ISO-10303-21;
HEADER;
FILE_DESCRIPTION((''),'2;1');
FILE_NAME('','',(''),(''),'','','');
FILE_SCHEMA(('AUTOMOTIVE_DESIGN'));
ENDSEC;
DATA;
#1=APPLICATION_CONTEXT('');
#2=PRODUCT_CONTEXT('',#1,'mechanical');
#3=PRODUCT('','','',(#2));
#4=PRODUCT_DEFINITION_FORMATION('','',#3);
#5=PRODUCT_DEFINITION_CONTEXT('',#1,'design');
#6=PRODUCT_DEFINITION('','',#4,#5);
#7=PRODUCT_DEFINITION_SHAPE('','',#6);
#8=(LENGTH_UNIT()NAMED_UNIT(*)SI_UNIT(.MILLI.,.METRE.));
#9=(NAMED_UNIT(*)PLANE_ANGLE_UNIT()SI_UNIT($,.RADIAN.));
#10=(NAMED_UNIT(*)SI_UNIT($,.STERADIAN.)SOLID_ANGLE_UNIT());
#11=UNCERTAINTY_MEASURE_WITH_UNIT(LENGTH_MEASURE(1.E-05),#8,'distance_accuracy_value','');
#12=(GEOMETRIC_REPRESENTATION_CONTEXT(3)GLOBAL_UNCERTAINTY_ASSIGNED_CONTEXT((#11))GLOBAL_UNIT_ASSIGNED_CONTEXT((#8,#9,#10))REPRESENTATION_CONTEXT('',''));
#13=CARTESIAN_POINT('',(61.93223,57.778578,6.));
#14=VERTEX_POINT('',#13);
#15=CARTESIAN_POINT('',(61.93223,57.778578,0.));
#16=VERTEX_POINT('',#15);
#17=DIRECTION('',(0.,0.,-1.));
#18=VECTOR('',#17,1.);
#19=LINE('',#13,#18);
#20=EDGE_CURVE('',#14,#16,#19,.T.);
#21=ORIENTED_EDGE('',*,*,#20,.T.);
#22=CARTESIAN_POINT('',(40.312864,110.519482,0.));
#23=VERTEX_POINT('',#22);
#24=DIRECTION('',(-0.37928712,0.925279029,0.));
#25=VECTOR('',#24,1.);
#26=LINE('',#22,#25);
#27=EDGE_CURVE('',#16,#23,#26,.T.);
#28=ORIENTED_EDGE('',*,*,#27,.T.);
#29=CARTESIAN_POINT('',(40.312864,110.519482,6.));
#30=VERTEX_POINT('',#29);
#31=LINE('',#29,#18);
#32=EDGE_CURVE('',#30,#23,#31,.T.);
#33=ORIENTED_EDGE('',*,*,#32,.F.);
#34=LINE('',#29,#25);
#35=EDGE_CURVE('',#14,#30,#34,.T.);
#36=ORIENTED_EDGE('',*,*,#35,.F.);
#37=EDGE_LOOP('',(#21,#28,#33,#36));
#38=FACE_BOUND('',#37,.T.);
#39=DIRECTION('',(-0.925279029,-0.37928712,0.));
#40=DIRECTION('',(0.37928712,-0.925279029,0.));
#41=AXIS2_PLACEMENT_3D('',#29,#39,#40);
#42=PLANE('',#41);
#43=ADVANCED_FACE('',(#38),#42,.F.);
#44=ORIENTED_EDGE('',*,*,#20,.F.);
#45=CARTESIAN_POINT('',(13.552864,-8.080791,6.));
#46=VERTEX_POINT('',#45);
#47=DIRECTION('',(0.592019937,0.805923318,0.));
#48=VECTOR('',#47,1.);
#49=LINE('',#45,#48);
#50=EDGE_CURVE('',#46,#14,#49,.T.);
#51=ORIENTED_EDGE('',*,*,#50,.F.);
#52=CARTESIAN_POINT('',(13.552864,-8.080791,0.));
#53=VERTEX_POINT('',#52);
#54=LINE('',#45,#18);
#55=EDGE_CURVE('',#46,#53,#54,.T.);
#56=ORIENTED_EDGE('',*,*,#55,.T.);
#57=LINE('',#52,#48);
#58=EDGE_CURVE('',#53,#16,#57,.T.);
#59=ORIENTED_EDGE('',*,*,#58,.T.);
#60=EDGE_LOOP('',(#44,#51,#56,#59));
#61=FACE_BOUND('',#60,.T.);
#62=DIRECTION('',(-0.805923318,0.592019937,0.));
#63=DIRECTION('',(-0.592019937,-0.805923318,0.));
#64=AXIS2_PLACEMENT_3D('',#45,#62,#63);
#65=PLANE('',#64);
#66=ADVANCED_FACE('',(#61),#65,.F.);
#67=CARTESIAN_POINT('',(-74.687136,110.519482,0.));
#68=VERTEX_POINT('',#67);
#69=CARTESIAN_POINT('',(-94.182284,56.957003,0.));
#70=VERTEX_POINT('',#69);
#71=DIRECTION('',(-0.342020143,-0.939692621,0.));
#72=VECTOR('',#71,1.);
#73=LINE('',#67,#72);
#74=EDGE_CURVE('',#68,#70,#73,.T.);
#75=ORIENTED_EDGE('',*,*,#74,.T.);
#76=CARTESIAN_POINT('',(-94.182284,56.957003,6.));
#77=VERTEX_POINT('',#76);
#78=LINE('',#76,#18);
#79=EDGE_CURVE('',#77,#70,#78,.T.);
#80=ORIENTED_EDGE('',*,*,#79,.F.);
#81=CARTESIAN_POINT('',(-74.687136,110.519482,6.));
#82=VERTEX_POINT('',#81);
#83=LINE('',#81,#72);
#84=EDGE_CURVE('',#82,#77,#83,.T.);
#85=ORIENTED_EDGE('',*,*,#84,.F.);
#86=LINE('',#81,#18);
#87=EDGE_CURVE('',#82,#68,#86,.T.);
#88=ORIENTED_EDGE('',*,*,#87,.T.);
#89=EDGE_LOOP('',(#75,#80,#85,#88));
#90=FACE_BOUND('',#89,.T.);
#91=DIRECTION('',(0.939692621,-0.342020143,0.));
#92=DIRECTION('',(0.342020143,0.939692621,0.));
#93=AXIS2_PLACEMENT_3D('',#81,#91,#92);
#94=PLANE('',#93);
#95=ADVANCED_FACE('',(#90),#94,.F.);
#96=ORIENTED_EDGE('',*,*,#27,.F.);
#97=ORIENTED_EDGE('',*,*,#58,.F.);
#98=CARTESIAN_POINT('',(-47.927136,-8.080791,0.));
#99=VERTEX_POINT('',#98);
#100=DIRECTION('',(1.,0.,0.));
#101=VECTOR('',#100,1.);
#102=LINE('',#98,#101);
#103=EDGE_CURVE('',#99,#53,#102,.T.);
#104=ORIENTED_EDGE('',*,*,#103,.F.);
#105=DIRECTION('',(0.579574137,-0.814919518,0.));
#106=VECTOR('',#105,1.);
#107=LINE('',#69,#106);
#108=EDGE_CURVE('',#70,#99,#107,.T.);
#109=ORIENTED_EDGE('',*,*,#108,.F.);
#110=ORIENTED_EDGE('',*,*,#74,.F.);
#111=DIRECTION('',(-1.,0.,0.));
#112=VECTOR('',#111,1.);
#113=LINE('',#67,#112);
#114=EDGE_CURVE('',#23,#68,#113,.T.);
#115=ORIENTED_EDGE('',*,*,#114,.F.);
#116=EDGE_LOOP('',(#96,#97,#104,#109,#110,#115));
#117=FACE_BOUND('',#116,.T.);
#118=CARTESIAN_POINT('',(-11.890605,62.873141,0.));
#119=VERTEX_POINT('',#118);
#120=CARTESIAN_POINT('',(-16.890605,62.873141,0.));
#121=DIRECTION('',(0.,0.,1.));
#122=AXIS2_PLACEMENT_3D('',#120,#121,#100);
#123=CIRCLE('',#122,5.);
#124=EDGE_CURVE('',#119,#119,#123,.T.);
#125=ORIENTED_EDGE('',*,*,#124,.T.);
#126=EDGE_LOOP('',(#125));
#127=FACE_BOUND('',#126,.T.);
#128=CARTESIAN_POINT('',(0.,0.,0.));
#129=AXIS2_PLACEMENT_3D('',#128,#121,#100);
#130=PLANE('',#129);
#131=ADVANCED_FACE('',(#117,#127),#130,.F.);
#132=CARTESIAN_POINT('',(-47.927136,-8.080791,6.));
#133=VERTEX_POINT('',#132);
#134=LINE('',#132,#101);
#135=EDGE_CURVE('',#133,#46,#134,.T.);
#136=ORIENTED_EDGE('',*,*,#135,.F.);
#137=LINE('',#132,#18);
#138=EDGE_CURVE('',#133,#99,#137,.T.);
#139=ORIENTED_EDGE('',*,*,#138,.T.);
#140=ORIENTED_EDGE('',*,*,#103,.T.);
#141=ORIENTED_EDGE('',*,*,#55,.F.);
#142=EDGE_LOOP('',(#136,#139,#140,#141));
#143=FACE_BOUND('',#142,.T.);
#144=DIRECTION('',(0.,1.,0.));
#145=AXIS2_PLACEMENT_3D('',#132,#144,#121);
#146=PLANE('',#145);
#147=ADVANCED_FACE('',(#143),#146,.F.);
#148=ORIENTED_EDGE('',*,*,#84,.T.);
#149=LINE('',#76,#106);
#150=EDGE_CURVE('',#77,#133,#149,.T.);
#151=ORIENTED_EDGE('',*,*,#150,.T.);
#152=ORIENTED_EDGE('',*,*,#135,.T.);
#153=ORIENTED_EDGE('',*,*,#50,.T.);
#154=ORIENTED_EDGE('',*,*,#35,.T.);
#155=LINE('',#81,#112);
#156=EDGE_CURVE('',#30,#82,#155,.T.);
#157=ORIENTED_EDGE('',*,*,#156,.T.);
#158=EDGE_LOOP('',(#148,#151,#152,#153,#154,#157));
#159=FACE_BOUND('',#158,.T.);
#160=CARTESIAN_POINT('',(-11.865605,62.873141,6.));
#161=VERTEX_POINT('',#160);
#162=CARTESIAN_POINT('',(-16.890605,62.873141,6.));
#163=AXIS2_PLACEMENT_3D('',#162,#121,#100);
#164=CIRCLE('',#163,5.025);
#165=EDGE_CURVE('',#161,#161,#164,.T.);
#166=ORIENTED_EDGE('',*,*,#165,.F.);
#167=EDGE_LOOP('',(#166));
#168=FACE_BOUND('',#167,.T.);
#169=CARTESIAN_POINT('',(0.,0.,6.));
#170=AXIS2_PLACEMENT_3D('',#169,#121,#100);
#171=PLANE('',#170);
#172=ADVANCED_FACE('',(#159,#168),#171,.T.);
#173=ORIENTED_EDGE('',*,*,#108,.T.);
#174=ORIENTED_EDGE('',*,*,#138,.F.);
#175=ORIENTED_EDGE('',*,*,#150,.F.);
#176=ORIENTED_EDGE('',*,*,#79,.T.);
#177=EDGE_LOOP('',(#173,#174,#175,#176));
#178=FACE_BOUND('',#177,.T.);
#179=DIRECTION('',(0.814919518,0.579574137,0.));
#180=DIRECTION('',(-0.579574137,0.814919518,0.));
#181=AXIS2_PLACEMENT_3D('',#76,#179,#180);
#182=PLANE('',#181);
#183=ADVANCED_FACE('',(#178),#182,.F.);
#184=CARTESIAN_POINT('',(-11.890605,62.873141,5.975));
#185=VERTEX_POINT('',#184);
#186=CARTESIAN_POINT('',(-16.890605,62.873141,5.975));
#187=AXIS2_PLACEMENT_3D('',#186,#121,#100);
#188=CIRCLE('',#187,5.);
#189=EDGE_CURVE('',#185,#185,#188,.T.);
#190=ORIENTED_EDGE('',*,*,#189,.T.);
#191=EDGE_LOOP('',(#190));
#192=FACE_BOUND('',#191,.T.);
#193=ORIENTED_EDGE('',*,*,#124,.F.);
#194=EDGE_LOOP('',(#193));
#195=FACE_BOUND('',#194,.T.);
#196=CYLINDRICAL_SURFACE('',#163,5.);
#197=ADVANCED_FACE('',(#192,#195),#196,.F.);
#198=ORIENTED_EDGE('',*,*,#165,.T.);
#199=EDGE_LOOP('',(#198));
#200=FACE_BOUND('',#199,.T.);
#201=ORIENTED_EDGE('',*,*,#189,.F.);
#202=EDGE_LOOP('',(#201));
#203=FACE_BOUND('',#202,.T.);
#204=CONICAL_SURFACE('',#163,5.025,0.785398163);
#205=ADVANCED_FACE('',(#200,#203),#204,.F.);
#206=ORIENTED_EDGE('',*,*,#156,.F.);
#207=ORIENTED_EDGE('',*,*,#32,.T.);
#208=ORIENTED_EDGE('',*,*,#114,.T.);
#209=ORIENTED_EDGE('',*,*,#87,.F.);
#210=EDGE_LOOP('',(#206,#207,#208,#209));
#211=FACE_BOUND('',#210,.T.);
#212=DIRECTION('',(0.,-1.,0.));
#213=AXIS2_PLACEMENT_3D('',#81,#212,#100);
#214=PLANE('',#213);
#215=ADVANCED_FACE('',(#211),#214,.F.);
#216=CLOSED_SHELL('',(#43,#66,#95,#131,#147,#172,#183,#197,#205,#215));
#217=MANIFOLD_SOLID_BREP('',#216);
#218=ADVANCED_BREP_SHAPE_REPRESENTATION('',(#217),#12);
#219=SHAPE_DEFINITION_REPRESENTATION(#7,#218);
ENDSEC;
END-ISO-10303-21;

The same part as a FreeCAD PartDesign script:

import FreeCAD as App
import Part
import Sketcher
from FreeCAD import Vector
Q = App.Units.Quantity

doc = App.newDocument("Part")
body = doc.addObject("PartDesign::Body", "Body")

sketch1 = doc.addObject("Sketcher::SketchObject", "Sketch")
body.addObject(sketch1)
sketch1.AttachmentSupport = (doc.XY_Plane, [""])
sketch1.MapMode = "FlatFace"
sketch1.addGeometry([
    Part.LineSegment(Vector(-48, -8, 0), Vector(14, -8, 0)),
    Part.LineSegment(Vector(14, -8, 0), Vector(62, 58, 0)),
    Part.LineSegment(Vector(62, 58, 0), Vector(40, 111, 0)),
    Part.LineSegment(Vector(40, 111, 0), Vector(-75, 111, 0)),
    Part.LineSegment(Vector(-75, 111, 0), Vector(-94, 57, 0)),
    Part.LineSegment(Vector(-94, 57, 0), Vector(-48, -8, 0)),
], False)
sketch1.addConstraint([
    Sketcher.Constraint("Coincident", 0, 2, 1, 1),
    Sketcher.Constraint("Coincident", 1, 2, 2, 1),
    Sketcher.Constraint("Coincident", 2, 2, 3, 1),
    Sketcher.Constraint("Coincident", 3, 2, 4, 1),
    Sketcher.Constraint("Coincident", 4, 2, 5, 1),
    Sketcher.Constraint("Coincident", 5, 2, 0, 1),
    Sketcher.Constraint("Horizontal", 0),
    Sketcher.Constraint("Horizontal", 3),
    Sketcher.Constraint("Equal", 2, 4),
    Sketcher.Constraint("DistanceX", 3, 2, 3, 1, 115.0),
    Sketcher.Constraint("Angle", 4, Q("-110 deg")),
    Sketcher.Constraint("Distance", 2, 57.0),
    Sketcher.Constraint("DistanceX", 0, 1, 0, 2, 61.48),
    Sketcher.Constraint("DistanceX", 0, 2, 2, 2, 26.76),
    Sketcher.Constraint("Distance", 1, 81.71915),
    Sketcher.Constraint("DistanceY", 0, 2, -1, 1, 8.080791),
    Sketcher.Constraint("DistanceX", -1, 1, 1, 2, 61.93223),
    Sketcher.Constraint("DistanceY", 0, 2, 1, 2, 65.859368),
])
pad1 = doc.addObject("PartDesign::Pad", "Pad")
body.addObject(pad1)
pad1.Profile = sketch1
pad1.Length = 6

sketch2 = doc.addObject("Sketcher::SketchObject", "Sketch001")
body.addObject(sketch2)
sketch2.AttachmentSupport = (doc.XY_Plane, [""])
sketch2.MapMode = "FlatFace"
sketch2.AttachmentOffset = App.Placement(Vector(0, 0, 6), App.Rotation())
sketch2.addGeometry(Part.Circle(Vector(-17, 63, 0), Vector(0, 0, 1), 5), False)
sketch2.addConstraint([
    Sketcher.Constraint("Diameter", 0, 10.0),
    Sketcher.Constraint("DistanceY", -1, 1, 0, 3, 62.873141),
    Sketcher.Constraint("DistanceX", 0, 3, -1, 1, 16.890605),
])
doc.recompute()
hole = doc.addObject("PartDesign::Hole", "Hole")
body.addObject(hole)
hole.Profile = sketch2
hole.ThreadType = "None"
hole.Diameter = 10
hole.DepthType = "Dimension"
hole.Depth = 50
hole.DrillPoint = "Angled"
hole.DrillPointAngle = 118
hole.HoleCutType = "Countersink"
hole.HoleCutDiameter = 10.05
hole.HoleCutCountersinkAngle = 90

doc.recompute()
